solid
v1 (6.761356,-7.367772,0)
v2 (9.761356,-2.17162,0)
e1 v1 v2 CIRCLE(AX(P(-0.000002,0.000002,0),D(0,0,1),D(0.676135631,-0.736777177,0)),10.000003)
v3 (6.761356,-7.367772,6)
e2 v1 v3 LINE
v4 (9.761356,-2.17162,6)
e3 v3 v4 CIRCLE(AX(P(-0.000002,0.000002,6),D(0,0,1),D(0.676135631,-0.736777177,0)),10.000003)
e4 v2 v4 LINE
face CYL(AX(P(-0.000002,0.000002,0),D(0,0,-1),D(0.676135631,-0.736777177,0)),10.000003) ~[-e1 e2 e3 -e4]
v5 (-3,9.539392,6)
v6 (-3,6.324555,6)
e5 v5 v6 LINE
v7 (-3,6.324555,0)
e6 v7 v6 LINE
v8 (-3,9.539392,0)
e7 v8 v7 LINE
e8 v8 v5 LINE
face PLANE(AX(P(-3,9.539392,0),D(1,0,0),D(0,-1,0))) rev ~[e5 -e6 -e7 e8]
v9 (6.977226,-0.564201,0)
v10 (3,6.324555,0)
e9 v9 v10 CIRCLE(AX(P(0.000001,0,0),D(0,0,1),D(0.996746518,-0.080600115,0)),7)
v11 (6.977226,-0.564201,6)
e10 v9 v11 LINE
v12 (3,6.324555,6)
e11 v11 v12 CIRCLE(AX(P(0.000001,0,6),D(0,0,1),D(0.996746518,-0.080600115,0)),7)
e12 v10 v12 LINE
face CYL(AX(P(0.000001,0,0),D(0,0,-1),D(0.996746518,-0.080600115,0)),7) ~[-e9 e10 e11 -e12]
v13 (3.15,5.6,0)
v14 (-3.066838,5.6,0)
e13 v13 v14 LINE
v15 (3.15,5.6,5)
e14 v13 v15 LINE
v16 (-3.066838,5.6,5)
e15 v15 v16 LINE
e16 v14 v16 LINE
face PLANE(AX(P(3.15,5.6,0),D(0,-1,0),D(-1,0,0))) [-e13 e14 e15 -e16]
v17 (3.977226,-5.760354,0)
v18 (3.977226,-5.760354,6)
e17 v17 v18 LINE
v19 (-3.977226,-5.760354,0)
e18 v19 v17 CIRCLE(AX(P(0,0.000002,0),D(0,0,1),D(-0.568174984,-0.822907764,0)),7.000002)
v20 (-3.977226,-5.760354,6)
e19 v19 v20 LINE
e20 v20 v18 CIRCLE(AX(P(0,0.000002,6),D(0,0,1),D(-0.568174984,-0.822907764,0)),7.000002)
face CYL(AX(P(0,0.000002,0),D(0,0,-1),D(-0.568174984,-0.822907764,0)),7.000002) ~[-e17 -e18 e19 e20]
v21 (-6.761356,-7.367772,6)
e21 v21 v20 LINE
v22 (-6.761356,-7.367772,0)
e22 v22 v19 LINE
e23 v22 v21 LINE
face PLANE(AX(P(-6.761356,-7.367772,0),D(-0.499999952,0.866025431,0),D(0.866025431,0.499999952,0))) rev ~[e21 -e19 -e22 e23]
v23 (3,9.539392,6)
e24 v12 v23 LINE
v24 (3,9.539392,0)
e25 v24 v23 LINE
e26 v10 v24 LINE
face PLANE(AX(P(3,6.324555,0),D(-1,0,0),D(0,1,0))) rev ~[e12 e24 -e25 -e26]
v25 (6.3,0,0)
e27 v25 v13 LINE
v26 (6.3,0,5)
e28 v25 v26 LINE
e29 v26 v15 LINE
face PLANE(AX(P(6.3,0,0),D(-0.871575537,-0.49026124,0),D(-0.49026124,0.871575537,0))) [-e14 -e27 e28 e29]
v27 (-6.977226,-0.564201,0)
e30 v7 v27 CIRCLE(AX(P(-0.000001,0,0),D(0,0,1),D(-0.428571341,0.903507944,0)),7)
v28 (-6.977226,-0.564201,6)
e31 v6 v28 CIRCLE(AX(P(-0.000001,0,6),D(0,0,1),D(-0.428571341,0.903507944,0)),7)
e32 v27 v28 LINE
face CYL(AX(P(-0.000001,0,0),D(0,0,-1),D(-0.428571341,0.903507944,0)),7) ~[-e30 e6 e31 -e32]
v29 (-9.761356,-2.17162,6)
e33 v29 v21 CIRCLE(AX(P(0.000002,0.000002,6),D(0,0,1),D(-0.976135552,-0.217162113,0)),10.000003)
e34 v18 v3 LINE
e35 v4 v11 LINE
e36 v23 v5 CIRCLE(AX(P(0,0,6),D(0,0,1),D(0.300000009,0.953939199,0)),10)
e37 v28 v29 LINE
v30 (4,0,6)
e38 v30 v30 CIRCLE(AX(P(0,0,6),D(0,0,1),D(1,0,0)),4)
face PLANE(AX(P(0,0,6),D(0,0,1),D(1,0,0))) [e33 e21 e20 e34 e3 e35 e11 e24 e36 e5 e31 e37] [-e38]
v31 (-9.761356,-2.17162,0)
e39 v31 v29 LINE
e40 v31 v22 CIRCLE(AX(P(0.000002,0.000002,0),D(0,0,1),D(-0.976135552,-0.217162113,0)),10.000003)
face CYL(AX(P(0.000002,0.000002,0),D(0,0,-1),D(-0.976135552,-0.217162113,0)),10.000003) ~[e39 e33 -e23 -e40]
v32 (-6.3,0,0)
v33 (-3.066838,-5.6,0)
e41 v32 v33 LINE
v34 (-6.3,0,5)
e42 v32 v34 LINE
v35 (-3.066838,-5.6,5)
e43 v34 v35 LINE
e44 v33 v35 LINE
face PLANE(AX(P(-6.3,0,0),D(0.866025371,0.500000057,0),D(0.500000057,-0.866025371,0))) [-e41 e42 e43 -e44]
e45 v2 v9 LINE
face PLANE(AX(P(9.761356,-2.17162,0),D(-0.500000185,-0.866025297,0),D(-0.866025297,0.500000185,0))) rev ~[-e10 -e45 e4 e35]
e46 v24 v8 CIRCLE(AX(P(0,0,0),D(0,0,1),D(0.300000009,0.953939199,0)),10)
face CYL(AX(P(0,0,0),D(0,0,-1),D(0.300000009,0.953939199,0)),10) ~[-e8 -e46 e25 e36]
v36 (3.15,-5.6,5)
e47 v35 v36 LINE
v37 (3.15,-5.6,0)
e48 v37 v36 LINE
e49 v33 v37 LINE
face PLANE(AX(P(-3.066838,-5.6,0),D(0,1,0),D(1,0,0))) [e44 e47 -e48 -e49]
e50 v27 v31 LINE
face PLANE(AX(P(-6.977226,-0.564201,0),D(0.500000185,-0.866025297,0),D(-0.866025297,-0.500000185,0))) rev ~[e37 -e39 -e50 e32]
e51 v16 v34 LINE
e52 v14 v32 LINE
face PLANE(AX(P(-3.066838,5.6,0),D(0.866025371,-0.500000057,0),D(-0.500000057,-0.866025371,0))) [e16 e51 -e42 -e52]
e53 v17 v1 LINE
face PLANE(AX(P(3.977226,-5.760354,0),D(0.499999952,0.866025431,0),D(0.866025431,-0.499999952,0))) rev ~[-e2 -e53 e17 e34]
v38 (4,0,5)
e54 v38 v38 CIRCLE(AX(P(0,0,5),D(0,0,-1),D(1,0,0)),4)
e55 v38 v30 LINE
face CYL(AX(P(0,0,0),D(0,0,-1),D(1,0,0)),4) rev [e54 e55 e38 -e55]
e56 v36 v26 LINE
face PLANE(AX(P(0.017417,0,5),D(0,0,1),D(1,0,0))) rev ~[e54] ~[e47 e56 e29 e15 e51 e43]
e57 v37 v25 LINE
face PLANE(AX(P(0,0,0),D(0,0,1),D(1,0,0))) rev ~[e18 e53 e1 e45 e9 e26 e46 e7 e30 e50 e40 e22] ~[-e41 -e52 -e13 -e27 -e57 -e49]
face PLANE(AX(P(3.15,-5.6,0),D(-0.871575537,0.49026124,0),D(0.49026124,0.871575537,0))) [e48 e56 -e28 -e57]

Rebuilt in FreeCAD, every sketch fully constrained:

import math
import FreeCAD as App
import Part
import Sketcher
from FreeCAD import Vector
Q = App.Units.Quantity

doc = App.newDocument("Part")
body = doc.addObject("PartDesign::Body", "Body")

# Sketch on XY plane
sketch1 = body.newObject("Sketcher::SketchObject", "Sketch")
sketch1.AttachmentSupport = (doc.getObject("XY_Plane"), [""])
sketch1.MapMode = "FlatFace"
sketch1.addGeometry(Part.LineSegment(Vector(-7, -0.6, 0), Vector(-9.8, -2.2, 0)), False)
sketch1.addGeometry(Part.ArcOfCircle(Part.Circle(Vector(0, 0, 0), Vector(0, 0, 1), 10), math.radians(-167), math.radians(-133)), False)
sketch1.addGeometry(Part.LineSegment(Vector(-6.8, -7.4, 0), Vector(-4, -5.8, 0)), False)
sketch1.addGeometry(Part.ArcOfCircle(Part.Circle(Vector(0, 0, 0), Vector(0, 0, 1), 7), math.radians(-125), math.radians(-55)), False)
sketch1.addGeometry(Part.LineSegment(Vector(4, -5.8, 0), Vector(6.8, -7.4, 0)), False)
sketch1.addGeometry(Part.ArcOfCircle(Part.Circle(Vector(0, 0, 0), Vector(0, 0, 1), 10), math.radians(-47), math.radians(-13)), False)
sketch1.addGeometry(Part.LineSegment(Vector(9.8, -2.2, 0), Vector(7, -0.6, 0)), False)
sketch1.addGeometry(Part.ArcOfCircle(Part.Circle(Vector(0, 0, 0), Vector(0, 0, 1), 7), math.radians(-5), math.radians(65)), False)
sketch1.addGeometry(Part.LineSegment(Vector(3, 6.3, 0), Vector(3, 9.5, 0)), False)
sketch1.addGeometry(Part.ArcOfCircle(Part.Circle(Vector(0, 0, 0), Vector(0, 0, 1), 10), math.radians(73), math.radians(107)), False)
sketch1.addGeometry(Part.LineSegment(Vector(-3, 9.5, 0), Vector(-3, 6.3, 0)), False)
sketch1.addGeometry(Part.ArcOfCircle(Part.Circle(Vector(0, 0, 0), Vector(0, 0, 1), 7), math.radians(115), math.radians(185)), False)
sketch1.addGeometry(Part.Circle(Vector(0, 0, 0), Vector(0, 0, 1), 4), False)
sketch1.addConstraint(Sketcher.Constraint("Coincident", 0, 2, 1, 1))
sketch1.addConstraint(Sketcher.Constraint("Coincident", 1, 2, 2, 1))
sketch1.addConstraint(Sketcher.Constraint("Coincident", 2, 2, 3, 1))
sketch1.addConstraint(Sketcher.Constraint("Coincident", 3, 2, 4, 1))
sketch1.addConstraint(Sketcher.Constraint("Coincident", 4, 2, 5, 1))
sketch1.addConstraint(Sketcher.Constraint("Coincident", 5, 2, 6, 1))
sketch1.addConstraint(Sketcher.Constraint("Coincident", 6, 2, 7, 1))
sketch1.addConstraint(Sketcher.Constraint("Coincident", 7, 2, 8, 1))
sketch1.addConstraint(Sketcher.Constraint("Coincident", 8, 2, 9, 1))
sketch1.addConstraint(Sketcher.Constraint("Coincident", 9, 2, 10, 1))
sketch1.addConstraint(Sketcher.Constraint("Coincident", 10, 2, 11, 1))
sketch1.addConstraint(Sketcher.Constraint("Coincident", 11, 2, 0, 1))
sketch1.addConstraint(Sketcher.Constraint("Vertical", 8))
sketch1.addConstraint(Sketcher.Constraint("Vertical", 10))
sketch1.addConstraint(Sketcher.Constraint("Coincident", 1, 3, -1, 1))
sketch1.addConstraint(Sketcher.Constraint("Coincident", 3, 3, -1, 1))
sketch1.addConstraint(Sketcher.Constraint("Coincident", 5, 3, -1, 1))
sketch1.addConstraint(Sketcher.Constraint("Coincident", 7, 3, -1, 1))
sketch1.addConstraint(Sketcher.Constraint("Coincident", 9, 3, -1, 1))
sketch1.addConstraint(Sketcher.Constraint("Coincident", 11, 3, -1, 1))
sketch1.addConstraint(Sketcher.Constraint("Coincident", 12, 3, -1, 1))
sketch1.addConstraint(Sketcher.Constraint("Equal", 1, 5))
sketch1.addConstraint(Sketcher.Constraint("Equal", 7, 11))
sketch1.addConstraint(Sketcher.Constraint("Parallel", 0, 2))
sketch1.addConstraint(Sketcher.Constraint("Parallel", 4, 6))
sketch1.addConstraint(Sketcher.Constraint("Horizontal", 2, 2, 3, 2))
sketch1.addConstraint(Sketcher.Constraint("Horizontal", 1, 2, 4, 2))
sketch1.addConstraint(Sketcher.Constraint("Horizontal", 0, 2, 5, 2))
sketch1.addConstraint(Sketcher.Constraint("Horizontal", 8, 2, 9, 2))
sketch1.addConstraint(Sketcher.Constraint("Equal", 0, 2))
sketch1.addConstraint(Sketcher.Constraint("Diameter", 12, 8.0))
sketch1.addConstraint(Sketcher.Constraint("Radius", 3, 7.000002))
sketch1.addConstraint(Sketcher.Constraint("Radius", 7, 7.0))
sketch1.addConstraint(Sketcher.Constraint("Radius", 9, 10.0))
sketch1.addConstraint(Sketcher.Constraint("Angle", 0, Q("-149.999988 deg")))
sketch1.addConstraint(Sketcher.Constraint("DistanceX", -1, 1, 7, 2, 3.0))
sketch1.addConstraint(Sketcher.Constraint("DistanceX", 0, 2, 1, 2, 3.0))
sketch1.addConstraint(Sketcher.Constraint("Radius", 1, 10.000003))
pad1 = body.newObject("PartDesign::Pad", "Pad")
pad1.Profile = sketch1
pad1.Length = 6

# Sketch on XY plane
sketch2 = body.newObject("Sketcher::SketchObject", "Sketch001")
sketch2.AttachmentSupport = (doc.getObject("XY_Plane"), [""])
sketch2.MapMode = "FlatFace"
sketch2.addGeometry(Part.LineSegment(Vector(3, 6, 0), Vector(-3, 6, 0)), False)
sketch2.addGeometry(Part.LineSegment(Vector(-3, 6, 0), Vector(-6, 0, 0)), False)
sketch2.addGeometry(Part.LineSegment(Vector(-6, 0, 0), Vector(-3, -6, 0)), False)
sketch2.addGeometry(Part.LineSegment(Vector(-3, -6, 0), Vector(3, -6, 0)), False)
sketch2.addGeometry(Part.LineSegment(Vector(3, -6, 0), Vector(6, 0, 0)), False)
sketch2.addGeometry(Part.LineSegment(Vector(6, 0, 0), Vector(3, 6, 0)), False)
sketch2.addConstraint(Sketcher.Constraint("Coincident", 0, 2, 1, 1))
sketch2.addConstraint(Sketcher.Constraint("Coincident", 1, 2, 2, 1))
sketch2.addConstraint(Sketcher.Constraint("Coincident", 2, 2, 3, 1))
sketch2.addConstraint(Sketcher.Constraint("Coincident", 3, 2, 4, 1))
sketch2.addConstraint(Sketcher.Constraint("Coincident", 4, 2, 5, 1))
sketch2.addConstraint(Sketcher.Constraint("Coincident", 5, 2, 0, 1))
sketch2.addConstraint(Sketcher.Constraint("Horizontal", 0))
sketch2.addConstraint(Sketcher.Constraint("Horizontal", 3))
sketch2.addConstraint(Sketcher.Constraint("Symmetric", 1, 2, 4, 2, -1, 1))
sketch2.addConstraint(Sketcher.Constraint("Symmetric", 0, 2, 2, 2, -1))
sketch2.addConstraint(Sketcher.Constraint("PointOnObject", 1, 2, -1))
sketch2.addConstraint(Sketcher.Constraint("Vertical", 3, 2, 5, 2))
sketch2.addConstraint(Sketcher.Constraint("Angle", 1, Q("-120.000004 deg")))
sketch2.addConstraint(Sketcher.Constraint("DistanceY", -1, 1, 0, 2, 5.6))
sketch2.addConstraint(Sketcher.Constraint("DistanceX", 1, 2, -1, 1, 6.3))
sketch2.addConstraint(Sketcher.Constraint("DistanceX", -1, 1, 3, 2, 3.15))
pocket1 = body.newObject("PartDesign::Pocket", "Pocket")
pocket1.Profile = sketch2
pocket1.Length = 5
pocket1.Reversed = True

doc.recompute()
